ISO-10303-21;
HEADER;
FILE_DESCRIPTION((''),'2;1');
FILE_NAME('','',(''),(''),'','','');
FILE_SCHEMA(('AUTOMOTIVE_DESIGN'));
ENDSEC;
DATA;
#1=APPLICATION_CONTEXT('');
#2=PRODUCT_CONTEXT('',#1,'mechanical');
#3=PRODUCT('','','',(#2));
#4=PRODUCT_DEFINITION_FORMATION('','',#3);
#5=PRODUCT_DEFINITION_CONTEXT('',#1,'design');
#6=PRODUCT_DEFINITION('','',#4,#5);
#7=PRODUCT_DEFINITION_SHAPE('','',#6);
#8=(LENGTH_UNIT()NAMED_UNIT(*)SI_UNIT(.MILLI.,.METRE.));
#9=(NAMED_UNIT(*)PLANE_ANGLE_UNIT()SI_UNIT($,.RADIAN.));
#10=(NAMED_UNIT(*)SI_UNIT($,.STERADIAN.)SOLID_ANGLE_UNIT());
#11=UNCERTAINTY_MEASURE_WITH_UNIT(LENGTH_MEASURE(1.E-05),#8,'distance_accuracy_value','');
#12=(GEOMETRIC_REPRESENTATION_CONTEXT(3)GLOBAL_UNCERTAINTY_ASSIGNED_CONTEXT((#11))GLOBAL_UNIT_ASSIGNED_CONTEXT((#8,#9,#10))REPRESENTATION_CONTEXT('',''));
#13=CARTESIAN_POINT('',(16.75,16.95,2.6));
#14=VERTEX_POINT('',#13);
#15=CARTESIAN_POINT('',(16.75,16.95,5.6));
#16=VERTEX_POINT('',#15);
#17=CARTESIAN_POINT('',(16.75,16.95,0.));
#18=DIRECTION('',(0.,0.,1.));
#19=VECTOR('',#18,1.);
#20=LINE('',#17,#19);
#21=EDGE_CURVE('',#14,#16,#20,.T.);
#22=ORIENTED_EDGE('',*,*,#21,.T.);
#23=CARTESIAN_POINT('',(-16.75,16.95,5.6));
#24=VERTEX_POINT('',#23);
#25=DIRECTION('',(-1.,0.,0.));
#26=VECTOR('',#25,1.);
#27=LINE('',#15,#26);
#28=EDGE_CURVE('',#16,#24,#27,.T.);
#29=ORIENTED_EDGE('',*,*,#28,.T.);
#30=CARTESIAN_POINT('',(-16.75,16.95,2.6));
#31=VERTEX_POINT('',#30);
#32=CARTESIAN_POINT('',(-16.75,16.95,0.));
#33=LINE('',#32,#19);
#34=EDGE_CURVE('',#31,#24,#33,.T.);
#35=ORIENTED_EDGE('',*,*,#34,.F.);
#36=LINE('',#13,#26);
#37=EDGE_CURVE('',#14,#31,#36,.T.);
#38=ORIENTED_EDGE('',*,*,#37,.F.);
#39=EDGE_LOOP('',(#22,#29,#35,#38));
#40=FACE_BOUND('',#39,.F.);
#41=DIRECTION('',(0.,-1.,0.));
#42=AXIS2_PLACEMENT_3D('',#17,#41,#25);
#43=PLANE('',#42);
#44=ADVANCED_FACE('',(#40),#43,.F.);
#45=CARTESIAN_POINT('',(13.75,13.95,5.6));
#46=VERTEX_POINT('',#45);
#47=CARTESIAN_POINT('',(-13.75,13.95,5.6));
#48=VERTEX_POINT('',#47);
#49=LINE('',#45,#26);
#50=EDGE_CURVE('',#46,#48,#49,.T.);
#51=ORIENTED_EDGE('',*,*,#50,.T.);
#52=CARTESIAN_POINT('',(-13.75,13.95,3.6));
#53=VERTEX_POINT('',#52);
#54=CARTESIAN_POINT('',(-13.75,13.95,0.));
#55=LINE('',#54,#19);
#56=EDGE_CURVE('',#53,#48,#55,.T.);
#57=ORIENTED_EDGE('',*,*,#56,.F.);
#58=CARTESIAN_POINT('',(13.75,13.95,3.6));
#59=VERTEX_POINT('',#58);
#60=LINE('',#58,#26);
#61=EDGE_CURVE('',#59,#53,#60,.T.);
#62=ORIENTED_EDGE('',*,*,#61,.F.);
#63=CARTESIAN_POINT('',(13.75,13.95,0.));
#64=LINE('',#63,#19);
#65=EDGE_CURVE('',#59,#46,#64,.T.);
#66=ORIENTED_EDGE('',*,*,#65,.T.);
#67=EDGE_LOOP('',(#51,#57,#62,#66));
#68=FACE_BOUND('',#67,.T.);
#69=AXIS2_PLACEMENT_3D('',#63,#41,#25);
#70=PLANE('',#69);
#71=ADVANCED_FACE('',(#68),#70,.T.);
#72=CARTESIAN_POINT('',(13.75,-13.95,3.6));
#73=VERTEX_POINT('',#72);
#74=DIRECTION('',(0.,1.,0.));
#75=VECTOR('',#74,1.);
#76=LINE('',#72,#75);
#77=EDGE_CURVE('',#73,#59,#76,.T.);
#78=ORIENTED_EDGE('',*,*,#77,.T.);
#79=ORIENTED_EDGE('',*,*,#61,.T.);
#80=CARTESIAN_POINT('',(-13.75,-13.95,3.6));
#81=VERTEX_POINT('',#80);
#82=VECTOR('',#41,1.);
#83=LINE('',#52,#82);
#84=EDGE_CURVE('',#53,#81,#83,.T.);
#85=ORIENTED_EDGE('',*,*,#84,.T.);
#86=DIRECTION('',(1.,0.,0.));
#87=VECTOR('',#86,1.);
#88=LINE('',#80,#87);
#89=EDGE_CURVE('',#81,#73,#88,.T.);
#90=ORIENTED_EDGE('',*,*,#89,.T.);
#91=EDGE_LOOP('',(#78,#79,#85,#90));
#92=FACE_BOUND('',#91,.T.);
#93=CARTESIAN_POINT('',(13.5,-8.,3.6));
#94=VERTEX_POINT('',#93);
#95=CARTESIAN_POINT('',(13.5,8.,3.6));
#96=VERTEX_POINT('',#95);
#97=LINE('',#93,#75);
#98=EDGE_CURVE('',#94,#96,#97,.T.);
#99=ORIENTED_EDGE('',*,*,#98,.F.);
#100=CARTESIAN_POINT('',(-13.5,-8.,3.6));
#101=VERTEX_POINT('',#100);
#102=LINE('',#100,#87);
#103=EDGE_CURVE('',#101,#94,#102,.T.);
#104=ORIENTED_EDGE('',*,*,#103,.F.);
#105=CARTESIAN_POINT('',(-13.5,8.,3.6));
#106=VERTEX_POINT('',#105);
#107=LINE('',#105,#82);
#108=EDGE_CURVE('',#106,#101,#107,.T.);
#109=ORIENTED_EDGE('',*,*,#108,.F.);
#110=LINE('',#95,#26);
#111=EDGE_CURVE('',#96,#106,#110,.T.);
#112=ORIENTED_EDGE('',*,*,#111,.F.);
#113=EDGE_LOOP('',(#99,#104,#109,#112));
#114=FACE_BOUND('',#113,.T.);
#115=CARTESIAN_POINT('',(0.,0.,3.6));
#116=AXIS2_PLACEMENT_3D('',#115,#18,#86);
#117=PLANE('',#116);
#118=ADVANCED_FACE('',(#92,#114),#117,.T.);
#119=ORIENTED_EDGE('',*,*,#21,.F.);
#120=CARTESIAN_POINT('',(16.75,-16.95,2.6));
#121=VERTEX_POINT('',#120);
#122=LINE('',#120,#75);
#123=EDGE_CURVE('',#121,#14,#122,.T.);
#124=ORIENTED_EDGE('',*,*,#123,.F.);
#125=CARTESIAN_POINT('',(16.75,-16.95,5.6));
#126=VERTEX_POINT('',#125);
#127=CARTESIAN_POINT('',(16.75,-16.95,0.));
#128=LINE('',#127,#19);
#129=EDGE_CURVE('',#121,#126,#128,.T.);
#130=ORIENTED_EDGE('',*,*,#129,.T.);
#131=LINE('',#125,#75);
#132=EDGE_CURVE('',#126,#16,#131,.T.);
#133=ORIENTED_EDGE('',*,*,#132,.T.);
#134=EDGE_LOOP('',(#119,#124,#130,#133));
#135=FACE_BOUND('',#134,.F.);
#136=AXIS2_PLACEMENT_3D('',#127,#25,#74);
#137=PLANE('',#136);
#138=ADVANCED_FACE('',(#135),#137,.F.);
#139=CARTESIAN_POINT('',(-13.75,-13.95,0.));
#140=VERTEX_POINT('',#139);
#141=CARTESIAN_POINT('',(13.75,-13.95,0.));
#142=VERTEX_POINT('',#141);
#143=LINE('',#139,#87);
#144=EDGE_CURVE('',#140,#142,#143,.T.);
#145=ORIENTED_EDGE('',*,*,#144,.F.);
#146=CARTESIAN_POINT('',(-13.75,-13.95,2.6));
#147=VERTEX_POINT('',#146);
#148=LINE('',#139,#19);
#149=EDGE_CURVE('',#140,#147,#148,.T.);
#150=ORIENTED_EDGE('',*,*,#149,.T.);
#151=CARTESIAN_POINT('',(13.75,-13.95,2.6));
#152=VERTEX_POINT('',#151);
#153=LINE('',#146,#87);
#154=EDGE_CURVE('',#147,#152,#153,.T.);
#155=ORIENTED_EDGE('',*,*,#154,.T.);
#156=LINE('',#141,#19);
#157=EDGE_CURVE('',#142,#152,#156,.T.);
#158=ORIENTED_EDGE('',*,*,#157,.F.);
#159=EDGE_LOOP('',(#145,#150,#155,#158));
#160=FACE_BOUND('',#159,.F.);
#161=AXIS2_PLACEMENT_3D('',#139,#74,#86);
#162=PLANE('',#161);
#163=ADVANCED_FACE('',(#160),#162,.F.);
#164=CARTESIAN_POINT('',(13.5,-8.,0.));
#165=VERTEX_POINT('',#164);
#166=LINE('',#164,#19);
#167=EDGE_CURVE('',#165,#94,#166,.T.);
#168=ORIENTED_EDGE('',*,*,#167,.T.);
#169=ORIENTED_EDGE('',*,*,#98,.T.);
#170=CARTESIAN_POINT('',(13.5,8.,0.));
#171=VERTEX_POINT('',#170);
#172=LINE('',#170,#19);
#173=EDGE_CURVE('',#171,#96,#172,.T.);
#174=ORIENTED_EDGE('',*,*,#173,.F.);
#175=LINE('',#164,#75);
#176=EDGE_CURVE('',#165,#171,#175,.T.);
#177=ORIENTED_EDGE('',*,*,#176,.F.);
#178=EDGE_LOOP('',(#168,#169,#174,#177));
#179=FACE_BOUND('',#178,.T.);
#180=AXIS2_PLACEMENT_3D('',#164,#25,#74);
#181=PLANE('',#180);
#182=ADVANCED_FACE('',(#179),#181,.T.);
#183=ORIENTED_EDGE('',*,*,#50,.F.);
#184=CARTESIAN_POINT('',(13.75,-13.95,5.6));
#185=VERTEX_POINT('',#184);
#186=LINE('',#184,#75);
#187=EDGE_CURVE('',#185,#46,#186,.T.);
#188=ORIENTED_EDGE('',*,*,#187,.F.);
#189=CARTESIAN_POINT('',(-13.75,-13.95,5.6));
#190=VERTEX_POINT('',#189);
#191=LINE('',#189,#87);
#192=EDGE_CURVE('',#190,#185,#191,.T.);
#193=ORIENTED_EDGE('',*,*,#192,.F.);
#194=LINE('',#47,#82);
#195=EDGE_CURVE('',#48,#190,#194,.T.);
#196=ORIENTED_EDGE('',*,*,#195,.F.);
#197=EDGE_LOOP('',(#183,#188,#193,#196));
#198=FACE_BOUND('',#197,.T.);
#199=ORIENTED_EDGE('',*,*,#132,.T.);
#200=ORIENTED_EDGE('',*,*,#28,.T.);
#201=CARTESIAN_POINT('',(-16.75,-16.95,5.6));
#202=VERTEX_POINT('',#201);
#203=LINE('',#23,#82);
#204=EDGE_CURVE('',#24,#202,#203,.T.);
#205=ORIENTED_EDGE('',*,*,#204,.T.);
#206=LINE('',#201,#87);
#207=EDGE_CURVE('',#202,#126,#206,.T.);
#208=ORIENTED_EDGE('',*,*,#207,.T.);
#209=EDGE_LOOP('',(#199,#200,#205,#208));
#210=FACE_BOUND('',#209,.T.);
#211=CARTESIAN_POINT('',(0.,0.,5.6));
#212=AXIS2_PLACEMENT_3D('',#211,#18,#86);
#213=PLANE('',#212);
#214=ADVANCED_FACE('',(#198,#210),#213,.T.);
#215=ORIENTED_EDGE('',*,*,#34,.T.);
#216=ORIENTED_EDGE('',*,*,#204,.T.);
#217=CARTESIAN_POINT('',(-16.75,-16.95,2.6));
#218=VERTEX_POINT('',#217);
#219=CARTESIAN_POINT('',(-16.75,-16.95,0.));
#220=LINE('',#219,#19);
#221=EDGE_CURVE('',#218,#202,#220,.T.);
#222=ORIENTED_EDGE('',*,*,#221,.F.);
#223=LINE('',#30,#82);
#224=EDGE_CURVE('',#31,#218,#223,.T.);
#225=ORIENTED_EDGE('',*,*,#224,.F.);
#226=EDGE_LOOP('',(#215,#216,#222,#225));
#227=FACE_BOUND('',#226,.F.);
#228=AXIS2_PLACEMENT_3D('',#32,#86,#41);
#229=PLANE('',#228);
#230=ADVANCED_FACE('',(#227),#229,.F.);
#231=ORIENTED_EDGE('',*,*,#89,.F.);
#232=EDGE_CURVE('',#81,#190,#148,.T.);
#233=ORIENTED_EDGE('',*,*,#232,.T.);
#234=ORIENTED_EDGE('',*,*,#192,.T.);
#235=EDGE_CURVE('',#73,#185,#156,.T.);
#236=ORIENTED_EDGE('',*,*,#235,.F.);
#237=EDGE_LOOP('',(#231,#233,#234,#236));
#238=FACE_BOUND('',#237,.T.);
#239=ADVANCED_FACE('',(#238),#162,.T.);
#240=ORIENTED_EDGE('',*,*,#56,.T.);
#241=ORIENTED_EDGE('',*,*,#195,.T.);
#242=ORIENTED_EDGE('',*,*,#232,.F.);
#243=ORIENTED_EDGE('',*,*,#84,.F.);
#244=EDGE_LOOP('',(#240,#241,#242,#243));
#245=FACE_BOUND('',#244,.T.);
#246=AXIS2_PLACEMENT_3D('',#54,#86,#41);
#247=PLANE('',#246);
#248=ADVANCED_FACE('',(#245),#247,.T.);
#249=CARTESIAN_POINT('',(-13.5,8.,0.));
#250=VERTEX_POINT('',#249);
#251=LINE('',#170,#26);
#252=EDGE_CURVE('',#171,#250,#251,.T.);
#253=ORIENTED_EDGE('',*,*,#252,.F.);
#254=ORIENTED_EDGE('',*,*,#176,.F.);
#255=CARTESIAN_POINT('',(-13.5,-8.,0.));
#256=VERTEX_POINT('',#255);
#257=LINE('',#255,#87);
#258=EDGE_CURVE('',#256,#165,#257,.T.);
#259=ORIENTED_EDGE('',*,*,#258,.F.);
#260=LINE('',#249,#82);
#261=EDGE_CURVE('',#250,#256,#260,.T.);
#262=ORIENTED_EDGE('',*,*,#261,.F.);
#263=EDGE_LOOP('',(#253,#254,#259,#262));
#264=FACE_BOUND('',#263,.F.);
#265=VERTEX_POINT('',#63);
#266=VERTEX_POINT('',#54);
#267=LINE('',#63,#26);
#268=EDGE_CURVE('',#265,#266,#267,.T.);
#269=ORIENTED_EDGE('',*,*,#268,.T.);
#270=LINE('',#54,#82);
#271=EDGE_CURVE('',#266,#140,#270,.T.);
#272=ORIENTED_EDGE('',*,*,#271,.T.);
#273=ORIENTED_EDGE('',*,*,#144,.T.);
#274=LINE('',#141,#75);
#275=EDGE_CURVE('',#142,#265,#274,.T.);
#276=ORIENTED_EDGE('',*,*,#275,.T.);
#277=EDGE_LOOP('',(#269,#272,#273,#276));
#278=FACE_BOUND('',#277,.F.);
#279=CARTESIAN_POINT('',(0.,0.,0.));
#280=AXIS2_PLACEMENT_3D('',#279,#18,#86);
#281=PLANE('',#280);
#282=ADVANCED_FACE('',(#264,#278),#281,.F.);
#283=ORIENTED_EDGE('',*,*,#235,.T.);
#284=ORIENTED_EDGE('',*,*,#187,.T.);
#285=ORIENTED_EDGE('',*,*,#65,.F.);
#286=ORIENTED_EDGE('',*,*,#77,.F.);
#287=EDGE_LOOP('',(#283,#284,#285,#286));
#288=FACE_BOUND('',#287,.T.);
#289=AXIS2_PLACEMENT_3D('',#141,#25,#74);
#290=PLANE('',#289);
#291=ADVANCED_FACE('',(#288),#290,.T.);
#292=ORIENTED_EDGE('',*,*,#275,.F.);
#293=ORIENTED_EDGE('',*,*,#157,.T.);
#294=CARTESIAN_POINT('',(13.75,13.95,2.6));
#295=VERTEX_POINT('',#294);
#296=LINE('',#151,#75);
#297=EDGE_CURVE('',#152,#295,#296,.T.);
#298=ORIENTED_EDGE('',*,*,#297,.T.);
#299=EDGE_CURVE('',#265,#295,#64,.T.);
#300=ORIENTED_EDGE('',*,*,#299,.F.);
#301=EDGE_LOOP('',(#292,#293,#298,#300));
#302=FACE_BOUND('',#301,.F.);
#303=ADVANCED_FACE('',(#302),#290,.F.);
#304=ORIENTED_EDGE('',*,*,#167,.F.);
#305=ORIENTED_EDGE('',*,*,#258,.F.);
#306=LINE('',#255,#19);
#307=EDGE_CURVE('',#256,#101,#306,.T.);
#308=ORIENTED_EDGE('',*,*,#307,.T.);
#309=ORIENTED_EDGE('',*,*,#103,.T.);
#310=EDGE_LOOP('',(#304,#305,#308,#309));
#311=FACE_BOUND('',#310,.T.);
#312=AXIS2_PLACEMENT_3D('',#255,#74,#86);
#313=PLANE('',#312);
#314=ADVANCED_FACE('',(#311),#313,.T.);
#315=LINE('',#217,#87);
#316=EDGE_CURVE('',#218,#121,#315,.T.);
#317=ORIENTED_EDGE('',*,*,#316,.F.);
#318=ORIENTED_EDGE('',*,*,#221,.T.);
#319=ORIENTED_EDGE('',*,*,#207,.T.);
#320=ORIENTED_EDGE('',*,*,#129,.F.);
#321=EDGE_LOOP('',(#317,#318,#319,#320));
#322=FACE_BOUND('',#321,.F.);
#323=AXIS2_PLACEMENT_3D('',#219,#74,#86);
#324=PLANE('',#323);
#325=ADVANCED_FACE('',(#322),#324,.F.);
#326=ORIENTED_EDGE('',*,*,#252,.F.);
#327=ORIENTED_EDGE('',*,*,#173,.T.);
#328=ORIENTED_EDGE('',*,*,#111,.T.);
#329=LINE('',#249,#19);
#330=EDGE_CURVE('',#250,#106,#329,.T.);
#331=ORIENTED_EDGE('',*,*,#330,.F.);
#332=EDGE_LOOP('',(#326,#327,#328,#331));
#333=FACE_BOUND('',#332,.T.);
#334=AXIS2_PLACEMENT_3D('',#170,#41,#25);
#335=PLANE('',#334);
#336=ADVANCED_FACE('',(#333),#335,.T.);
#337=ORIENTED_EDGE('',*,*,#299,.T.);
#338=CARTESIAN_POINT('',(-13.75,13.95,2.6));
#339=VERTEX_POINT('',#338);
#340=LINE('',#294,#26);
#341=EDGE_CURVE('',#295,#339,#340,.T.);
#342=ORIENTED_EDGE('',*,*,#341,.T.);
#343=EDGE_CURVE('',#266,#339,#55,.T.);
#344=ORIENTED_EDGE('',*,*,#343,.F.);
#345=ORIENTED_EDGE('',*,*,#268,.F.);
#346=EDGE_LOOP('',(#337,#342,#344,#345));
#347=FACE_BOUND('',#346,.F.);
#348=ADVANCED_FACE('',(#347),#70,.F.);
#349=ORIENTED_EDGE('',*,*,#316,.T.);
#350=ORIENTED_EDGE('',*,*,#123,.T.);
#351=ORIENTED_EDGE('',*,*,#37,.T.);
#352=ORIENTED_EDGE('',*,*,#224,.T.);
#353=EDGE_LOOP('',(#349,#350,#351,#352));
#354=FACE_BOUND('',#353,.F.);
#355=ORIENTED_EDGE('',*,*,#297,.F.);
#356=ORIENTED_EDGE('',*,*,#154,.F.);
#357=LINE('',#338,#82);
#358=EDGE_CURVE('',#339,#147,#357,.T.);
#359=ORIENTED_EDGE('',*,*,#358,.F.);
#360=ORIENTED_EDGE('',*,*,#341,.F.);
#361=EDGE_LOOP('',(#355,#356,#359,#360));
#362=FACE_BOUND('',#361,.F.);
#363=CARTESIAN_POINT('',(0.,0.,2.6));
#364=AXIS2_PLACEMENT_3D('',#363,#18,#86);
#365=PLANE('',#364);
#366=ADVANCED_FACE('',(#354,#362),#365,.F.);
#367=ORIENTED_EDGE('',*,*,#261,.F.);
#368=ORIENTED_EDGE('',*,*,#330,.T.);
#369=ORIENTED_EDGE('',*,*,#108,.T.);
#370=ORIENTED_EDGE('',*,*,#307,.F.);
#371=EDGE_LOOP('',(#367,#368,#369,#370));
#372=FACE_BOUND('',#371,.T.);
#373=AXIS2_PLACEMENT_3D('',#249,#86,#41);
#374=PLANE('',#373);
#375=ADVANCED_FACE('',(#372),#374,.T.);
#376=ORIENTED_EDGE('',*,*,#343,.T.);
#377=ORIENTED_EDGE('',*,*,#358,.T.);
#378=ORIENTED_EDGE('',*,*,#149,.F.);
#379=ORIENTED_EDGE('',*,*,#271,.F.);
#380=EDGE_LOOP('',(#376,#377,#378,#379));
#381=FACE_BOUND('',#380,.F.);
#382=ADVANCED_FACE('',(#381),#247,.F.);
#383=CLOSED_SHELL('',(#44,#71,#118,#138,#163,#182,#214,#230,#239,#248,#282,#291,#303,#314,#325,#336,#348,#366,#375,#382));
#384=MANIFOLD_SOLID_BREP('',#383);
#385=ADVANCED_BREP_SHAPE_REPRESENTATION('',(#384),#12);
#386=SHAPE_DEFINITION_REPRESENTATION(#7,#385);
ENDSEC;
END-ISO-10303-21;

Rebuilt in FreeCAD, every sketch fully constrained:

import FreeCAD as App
import Part
import Sketcher
from FreeCAD import Vector
Q = App.Units.Quantity


def add_polygon(sketch, points):
    """Adds a closed chain of lines whose ends are joined by coincident constraints."""
    first, n = sketch.GeometryCount, len(points)
    for a, b in zip(points, points[1:] + points[:1]):
        sketch.addGeometry(Part.LineSegment(App.Vector(*a, 0), App.Vector(*b, 0)), False)
    for i in range(n):
        sketch.addConstraint(Sketcher.Constraint("Coincident", first + i, 2, first + (i + 1) % n, 1))

doc = App.newDocument("Part")
body = doc.addObject("PartDesign::Body", "Body")

# Sketch on XY plane
sketch1 = doc.addObject("Sketcher::SketchObject", "Sketch")
body.addObject(sketch1)
sketch1.AttachmentSupport = (doc.XY_Plane, [""])
sketch1.MapMode = "FlatFace"
add_polygon(sketch1, [(14, -14), (14, 14), (-14, 14), (-14, -14)])  # lines 0-3
add_polygon(sketch1, [(-14, 8), (14, 8), (14, -8), (-14, -8)])  # lines 4-7
sketch1.addConstraint(Sketcher.Constraint("Vertical", 0))
sketch1.addConstraint(Sketcher.Constraint("Horizontal", 1))
sketch1.addConstraint(Sketcher.Constraint("Vertical", 2))
sketch1.addConstraint(Sketcher.Constraint("Horizontal", 3))
sketch1.addConstraint(Sketcher.Constraint("Horizontal", 4))
sketch1.addConstraint(Sketcher.Constraint("Vertical", 5))
sketch1.addConstraint(Sketcher.Constraint("Horizontal", 6))
sketch1.addConstraint(Sketcher.Constraint("Vertical", 7))
sketch1.addConstraint(Sketcher.Constraint("Symmetric", 0, 2, 2, 2, -1, 1))
sketch1.addConstraint(Sketcher.Constraint("Symmetric", 4, 2, 6, 2, -1, 1))
sketch1.addConstraint(Sketcher.Constraint("DistanceX", 4, 1, 4, 2, Q("27 mm")))
sketch1.addConstraint(Sketcher.Constraint("DistanceY", 5, 2, 5, 1, Q("16 mm")))
sketch1.addConstraint(Sketcher.Constraint("DistanceX", 1, 2, 1, 1, Q("27.5 mm")))
sketch1.addConstraint(Sketcher.Constraint("DistanceY", 0, 1, 0, 2, Q("27.9 mm")))
pad1 = doc.addObject("PartDesign::Pad", "Pad")
body.addObject(pad1)
pad1.Profile = sketch1
pad1.Length = 3.6

# Sketch on XY plane
sketch2 = doc.addObject("Sketcher::SketchObject", "Sketch001")
body.addObject(sketch2)
sketch2.AttachmentSupport = (doc.XY_Plane, [""])
sketch2.MapMode = "FlatFace"
add_polygon(sketch2, [(-17, 17), (-17, -17), (17, -17), (17, 17)])  # lines 0-3
add_polygon(sketch2, [(-14, 14), (14, 14), (14, -14), (-14, -14)])  # lines 4-7
sketch2.addConstraint(Sketcher.Constraint("Vertical", 0))
sketch2.addConstraint(Sketcher.Constraint("Horizontal", 1))
sketch2.addConstraint(Sketcher.Constraint("Vertical", 2))
sketch2.addConstraint(Sketcher.Constraint("Horizontal", 3))
sketch2.addConstraint(Sketcher.Constraint("Horizontal", 4))
sketch2.addConstraint(Sketcher.Constraint("Vertical", 5))
sketch2.addConstraint(Sketcher.Constraint("Horizontal", 6))
sketch2.addConstraint(Sketcher.Constraint("Vertical", 7))
sketch2.addConstraint(Sketcher.Constraint("Symmetric", 0, 2, 2, 2, -1, 1))
sketch2.addConstraint(Sketcher.Constraint("Symmetric", 4, 2, 6, 2, -1, 1))
sketch2.addConstraint(Sketcher.Constraint("DistanceX", 4, 1, 4, 2, Q("27.5 mm")))
sketch2.addConstraint(Sketcher.Constraint("DistanceY", 5, 2, 5, 1, Q("27.9 mm")))
sketch2.addConstraint(Sketcher.Constraint("DistanceX", 4, 2, 2, 2, Q("3 mm")))
sketch2.addConstraint(Sketcher.Constraint("DistanceY", 4, 2, 2, 2, Q("3 mm")))
pad2 = doc.addObject("PartDesign::Pad", "Pad001")
body.addObject(pad2)
pad2.Profile = sketch2
pad2.Length = 5.6

# Sketch on XY plane
sketch3 = doc.addObject("Sketcher::SketchObject", "Sketch002")
body.addObject(sketch3)
sketch3.AttachmentSupport = (doc.XY_Plane, [""])
sketch3.MapMode = "FlatFace"
add_polygon(sketch3, [(-17, 17), (-17, -17), (17, -17), (17, 17)])  # lines 0-3
add_polygon(sketch3, [(-14, 14), (14, 14), (14, -14), (-14, -14)])  # lines 4-7
sketch3.addConstraint(Sketcher.Constraint("Vertical", 0))
sketch3.addConstraint(Sketcher.Constraint("Horizontal", 1))
sketch3.addConstraint(Sketcher.Constraint("Vertical", 2))
sketch3.addConstraint(Sketcher.Constraint("Horizontal", 3))
sketch3.addConstraint(Sketcher.Constraint("Horizontal", 4))
sketch3.addConstraint(Sketcher.Constraint("Vertical", 5))
sketch3.addConstraint(Sketcher.Constraint("Horizontal", 6))
sketch3.addConstraint(Sketcher.Constraint("Vertical", 7))
sketch3.addConstraint(Sketcher.Constraint("Symmetric", 0, 2, 2, 2, -1, 1))
sketch3.addConstraint(Sketcher.Constraint("Symmetric", 4, 2, 6, 2, -1, 1))
sketch3.addConstraint(Sketcher.Constraint("DistanceX", 4, 1, 4, 2, Q("27.5 mm")))
sketch3.addConstraint(Sketcher.Constraint("DistanceY", 5, 2, 5, 1, Q("27.9 mm")))
sketch3.addConstraint(Sketcher.Constraint("DistanceX", 4, 2, 2, 2, Q("3 mm")))
sketch3.addConstraint(Sketcher.Constraint("DistanceY", 4, 2, 2, 2, Q("3 mm")))
pocket1 = doc.addObject("PartDesign::Pocket", "Pocket")
body.addObject(pocket1)
pocket1.Profile = sketch3
pocket1.Length = 2.6
pocket1.Reversed = True

doc.recompute()
